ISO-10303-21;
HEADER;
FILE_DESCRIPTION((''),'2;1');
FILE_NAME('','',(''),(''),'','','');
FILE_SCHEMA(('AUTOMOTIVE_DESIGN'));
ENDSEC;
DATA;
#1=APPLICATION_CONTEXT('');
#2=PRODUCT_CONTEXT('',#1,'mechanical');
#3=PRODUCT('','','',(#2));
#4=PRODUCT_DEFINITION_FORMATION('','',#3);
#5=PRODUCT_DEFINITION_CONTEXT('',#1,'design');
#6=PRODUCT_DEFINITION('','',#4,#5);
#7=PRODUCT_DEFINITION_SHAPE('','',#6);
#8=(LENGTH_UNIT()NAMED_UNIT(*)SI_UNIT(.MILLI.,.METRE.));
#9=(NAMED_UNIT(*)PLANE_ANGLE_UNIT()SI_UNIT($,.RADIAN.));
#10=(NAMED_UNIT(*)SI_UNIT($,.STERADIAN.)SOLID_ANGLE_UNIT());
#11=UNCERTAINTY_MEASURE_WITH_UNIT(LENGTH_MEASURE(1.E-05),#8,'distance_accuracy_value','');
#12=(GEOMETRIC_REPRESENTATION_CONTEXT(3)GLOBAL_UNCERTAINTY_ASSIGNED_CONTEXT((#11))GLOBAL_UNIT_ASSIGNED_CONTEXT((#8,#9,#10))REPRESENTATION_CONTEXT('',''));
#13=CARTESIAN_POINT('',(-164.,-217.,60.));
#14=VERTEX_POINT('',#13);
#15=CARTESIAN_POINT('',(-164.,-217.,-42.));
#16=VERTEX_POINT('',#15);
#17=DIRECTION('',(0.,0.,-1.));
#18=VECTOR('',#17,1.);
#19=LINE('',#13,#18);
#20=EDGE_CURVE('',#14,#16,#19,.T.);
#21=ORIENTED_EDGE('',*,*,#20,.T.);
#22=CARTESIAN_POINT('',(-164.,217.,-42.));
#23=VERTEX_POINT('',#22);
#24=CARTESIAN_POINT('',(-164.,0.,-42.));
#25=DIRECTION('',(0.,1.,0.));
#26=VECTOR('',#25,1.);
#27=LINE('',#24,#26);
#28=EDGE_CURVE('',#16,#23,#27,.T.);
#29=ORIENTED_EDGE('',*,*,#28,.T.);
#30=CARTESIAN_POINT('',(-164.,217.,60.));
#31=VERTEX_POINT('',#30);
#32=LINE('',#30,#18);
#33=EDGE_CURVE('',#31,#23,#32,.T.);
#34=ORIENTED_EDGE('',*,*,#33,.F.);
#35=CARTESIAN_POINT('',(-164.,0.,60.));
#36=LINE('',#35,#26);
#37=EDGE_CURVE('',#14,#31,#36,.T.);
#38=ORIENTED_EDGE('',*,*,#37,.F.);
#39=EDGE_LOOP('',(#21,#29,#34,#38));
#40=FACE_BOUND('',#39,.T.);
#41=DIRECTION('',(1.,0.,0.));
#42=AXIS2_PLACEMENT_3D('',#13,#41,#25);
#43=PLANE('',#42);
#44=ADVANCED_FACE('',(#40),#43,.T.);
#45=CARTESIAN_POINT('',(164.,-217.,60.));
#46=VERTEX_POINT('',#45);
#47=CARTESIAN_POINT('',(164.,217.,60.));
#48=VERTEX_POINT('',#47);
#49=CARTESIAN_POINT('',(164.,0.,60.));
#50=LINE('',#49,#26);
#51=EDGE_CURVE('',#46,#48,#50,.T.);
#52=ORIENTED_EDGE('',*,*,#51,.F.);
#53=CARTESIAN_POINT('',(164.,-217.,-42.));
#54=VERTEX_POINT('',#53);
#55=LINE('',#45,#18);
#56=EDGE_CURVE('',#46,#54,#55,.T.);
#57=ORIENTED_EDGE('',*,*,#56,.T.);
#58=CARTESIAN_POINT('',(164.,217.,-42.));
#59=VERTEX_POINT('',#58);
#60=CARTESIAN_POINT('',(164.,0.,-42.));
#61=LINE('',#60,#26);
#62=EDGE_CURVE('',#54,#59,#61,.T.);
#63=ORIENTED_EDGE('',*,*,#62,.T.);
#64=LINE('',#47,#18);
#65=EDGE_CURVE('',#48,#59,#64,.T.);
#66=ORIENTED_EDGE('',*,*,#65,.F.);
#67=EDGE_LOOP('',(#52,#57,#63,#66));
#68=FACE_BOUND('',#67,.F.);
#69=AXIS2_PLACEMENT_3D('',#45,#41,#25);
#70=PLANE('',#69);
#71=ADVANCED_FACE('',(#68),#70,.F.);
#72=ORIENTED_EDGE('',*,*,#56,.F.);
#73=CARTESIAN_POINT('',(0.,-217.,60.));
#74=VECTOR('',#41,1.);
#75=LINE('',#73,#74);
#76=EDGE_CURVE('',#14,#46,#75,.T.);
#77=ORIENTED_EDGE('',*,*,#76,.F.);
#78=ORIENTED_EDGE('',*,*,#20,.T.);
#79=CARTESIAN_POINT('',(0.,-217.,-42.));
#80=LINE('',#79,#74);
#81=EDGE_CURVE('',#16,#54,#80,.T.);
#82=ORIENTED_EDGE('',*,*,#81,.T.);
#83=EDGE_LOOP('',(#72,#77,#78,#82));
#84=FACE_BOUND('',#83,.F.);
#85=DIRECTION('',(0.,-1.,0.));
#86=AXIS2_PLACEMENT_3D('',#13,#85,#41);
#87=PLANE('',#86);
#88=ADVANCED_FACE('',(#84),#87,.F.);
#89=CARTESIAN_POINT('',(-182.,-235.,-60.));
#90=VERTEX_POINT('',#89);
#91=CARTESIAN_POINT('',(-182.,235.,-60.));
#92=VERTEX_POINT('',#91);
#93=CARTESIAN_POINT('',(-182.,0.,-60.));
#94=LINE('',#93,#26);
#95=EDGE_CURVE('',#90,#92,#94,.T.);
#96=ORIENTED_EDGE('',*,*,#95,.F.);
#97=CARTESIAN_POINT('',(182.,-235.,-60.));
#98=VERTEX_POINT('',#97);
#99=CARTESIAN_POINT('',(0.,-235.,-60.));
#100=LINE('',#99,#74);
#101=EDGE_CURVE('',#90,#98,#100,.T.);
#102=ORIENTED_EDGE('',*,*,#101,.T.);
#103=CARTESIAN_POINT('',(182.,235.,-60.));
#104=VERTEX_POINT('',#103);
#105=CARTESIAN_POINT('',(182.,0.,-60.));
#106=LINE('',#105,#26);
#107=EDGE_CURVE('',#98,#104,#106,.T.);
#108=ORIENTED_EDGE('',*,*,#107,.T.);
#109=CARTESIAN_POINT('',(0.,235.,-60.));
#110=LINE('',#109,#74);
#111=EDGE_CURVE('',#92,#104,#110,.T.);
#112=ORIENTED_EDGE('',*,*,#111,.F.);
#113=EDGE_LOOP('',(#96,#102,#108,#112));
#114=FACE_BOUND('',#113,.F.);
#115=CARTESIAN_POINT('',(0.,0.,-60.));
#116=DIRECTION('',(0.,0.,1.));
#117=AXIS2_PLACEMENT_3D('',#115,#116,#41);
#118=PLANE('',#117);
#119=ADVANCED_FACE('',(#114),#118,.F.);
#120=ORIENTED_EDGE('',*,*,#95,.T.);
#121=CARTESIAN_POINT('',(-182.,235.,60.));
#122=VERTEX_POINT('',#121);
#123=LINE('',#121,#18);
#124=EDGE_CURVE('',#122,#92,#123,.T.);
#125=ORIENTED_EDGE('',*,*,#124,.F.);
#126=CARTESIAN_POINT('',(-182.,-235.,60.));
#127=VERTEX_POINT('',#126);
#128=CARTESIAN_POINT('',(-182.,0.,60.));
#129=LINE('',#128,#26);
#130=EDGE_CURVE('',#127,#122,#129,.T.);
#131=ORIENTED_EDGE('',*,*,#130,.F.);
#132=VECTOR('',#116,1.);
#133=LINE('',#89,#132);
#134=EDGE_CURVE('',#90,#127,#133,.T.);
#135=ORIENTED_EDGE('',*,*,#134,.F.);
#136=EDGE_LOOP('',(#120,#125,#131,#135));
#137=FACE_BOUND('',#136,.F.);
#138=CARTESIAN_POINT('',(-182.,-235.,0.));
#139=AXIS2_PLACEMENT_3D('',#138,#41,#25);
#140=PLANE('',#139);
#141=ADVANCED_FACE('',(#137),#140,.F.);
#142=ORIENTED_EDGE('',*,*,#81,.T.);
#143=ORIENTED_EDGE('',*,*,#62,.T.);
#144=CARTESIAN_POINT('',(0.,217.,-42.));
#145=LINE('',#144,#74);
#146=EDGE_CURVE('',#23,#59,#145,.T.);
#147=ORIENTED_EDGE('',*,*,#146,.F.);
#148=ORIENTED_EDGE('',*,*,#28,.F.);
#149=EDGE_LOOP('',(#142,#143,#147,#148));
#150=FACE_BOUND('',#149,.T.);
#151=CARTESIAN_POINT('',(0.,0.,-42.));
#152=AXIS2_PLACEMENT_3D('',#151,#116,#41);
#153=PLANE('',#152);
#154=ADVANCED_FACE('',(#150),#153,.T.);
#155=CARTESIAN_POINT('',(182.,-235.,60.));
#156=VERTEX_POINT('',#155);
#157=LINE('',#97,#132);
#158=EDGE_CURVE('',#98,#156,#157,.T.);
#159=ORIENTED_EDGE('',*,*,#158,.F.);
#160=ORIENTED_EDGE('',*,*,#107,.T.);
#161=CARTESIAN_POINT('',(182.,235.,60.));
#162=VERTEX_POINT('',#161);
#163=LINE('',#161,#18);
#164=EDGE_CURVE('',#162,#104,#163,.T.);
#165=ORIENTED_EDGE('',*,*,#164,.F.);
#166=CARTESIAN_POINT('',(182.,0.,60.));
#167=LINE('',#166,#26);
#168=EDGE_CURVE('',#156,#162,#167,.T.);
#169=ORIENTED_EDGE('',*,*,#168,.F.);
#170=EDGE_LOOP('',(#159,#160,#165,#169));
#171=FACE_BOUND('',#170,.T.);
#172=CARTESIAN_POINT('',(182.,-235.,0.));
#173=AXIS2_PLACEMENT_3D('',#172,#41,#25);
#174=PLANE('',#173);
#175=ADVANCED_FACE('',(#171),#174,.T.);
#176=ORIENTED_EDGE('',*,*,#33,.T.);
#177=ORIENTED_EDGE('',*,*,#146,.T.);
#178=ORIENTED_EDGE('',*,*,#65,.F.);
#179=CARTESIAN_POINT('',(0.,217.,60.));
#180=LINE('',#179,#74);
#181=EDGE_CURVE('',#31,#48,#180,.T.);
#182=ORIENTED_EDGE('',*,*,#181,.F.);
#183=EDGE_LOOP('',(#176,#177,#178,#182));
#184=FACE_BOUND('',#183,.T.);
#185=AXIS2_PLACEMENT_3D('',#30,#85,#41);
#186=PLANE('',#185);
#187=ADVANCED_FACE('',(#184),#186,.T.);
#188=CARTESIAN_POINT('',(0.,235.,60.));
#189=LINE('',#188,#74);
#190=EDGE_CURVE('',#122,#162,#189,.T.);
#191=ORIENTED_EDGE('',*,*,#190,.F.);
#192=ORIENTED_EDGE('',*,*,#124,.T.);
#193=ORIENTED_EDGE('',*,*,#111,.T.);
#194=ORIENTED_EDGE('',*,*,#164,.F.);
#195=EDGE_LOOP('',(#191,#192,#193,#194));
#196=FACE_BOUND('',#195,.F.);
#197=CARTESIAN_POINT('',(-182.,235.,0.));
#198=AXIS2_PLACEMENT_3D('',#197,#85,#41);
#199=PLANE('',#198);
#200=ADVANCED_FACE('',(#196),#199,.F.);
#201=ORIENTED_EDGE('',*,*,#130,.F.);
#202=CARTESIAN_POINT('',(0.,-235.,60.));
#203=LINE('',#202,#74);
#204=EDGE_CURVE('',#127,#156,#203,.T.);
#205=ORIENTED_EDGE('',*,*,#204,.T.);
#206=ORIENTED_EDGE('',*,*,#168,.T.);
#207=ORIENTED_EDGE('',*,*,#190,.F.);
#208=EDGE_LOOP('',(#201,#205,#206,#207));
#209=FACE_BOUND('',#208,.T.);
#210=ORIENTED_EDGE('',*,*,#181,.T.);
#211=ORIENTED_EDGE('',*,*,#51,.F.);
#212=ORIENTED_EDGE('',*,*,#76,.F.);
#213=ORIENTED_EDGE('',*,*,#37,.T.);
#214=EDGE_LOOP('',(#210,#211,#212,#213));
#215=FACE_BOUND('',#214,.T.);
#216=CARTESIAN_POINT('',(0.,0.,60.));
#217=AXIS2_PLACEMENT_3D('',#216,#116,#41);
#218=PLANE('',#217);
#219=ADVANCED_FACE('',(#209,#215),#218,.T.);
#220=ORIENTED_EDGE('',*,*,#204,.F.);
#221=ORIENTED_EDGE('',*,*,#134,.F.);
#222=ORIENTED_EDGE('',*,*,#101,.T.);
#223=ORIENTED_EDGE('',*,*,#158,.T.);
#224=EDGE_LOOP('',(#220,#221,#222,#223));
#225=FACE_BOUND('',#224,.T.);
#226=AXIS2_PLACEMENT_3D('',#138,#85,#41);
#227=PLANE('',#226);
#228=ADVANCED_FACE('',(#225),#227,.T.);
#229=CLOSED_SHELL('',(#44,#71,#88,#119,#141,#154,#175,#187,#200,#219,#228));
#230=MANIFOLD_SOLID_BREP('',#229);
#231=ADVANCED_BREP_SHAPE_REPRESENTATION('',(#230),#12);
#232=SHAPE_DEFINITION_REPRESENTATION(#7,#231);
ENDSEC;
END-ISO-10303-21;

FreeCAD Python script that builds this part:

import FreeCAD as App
import Part
import Sketcher
Q = App.Units.Quantity

doc = App.newDocument("Part")
body = doc.addObject("PartDesign::Body", "Body")

# Sketch on XY plane
sketch1 = body.newObject("Sketcher::SketchObject", "Sketch")
sketch1.AttachmentSupport = (doc.getObject("XY_Plane"), [""])
sketch1.MapMode = "FlatFace"
sketch1.addGeometry([
    Part.LineSegment(App.Vector(-182, 235, 0), App.Vector(-182, -235, 0)),
    Part.LineSegment(App.Vector(-182, -235, 0), App.Vector(182, -235, 0)),
    Part.LineSegment(App.Vector(182, -235, 0), App.Vector(182, 235, 0)),
    Part.LineSegment(App.Vector(182, 235, 0), App.Vector(-182, 235, 0)),
], False)
sketch1.addConstraint([
    Sketcher.Constraint("Coincident", 0, 2, 1, 1),
    Sketcher.Constraint("Coincident", 1, 2, 2, 1),
    Sketcher.Constraint("Coincident", 2, 2, 3, 1),
    Sketcher.Constraint("Coincident", 3, 2, 0, 1),
    Sketcher.Constraint("Vertical", 0),
    Sketcher.Constraint("Horizontal", 1),
    Sketcher.Constraint("Vertical", 2),
    Sketcher.Constraint("Horizontal", 3),
    Sketcher.Constraint("Symmetric", 0, 2, 2, 2, -1, 1),
    Sketcher.Constraint("DistanceX", 1, 1, 1, 2, Q("364 mm")),
    Sketcher.Constraint("DistanceY", 0, 2, 0, 1, Q("470 mm")),
])
pad1 = body.newObject("PartDesign::Pad", "Pad")
pad1.Profile = sketch1
pad1.Length = 120
pad1.Midplane = True

# Sketch on XY plane
sketch2 = body.newObject("Sketcher::SketchObject", "Sketch001")
sketch2.AttachmentSupport = (doc.getObject("XY_Plane"), [""])
sketch2.MapMode = "FlatFace"
sketch2.AttachmentOffset = App.Placement(App.Vector(0, 0, 60), App.Rotation())
sketch2.addGeometry([
    Part.LineSegment(App.Vector(-164, 217, 0), App.Vector(-164, -217, 0)),
    Part.LineSegment(App.Vector(-164, -217, 0), App.Vector(164, -217, 0)),
    Part.LineSegment(App.Vector(164, -217, 0), App.Vector(164, 217, 0)),
    Part.LineSegment(App.Vector(164, 217, 0), App.Vector(-164, 217, 0)),
], False)
sketch2.addConstraint([
    Sketcher.Constraint("Coincident", 0, 2, 1, 1),
    Sketcher.Constraint("Coincident", 1, 2, 2, 1),
    Sketcher.Constraint("Coincident", 2, 2, 3, 1),
    Sketcher.Constraint("Coincident", 3, 2, 0, 1),
    Sketcher.Constraint("Vertical", 0),
    Sketcher.Constraint("Horizontal", 1),
    Sketcher.Constraint("Vertical", 2),
    Sketcher.Constraint("Horizontal", 3),
    Sketcher.Constraint("Symmetric", 0, 2, 2, 2, -1, 1),
    Sketcher.Constraint("DistanceX", 1, 1, 1, 2, Q("328 mm")),
    Sketcher.Constraint("DistanceY", 0, 2, 0, 1, Q("434 mm")),
])
pocket1 = body.newObject("PartDesign::Pocket", "Pocket")
pocket1.Profile = sketch2
pocket1.Length = 102

doc.recompute()
